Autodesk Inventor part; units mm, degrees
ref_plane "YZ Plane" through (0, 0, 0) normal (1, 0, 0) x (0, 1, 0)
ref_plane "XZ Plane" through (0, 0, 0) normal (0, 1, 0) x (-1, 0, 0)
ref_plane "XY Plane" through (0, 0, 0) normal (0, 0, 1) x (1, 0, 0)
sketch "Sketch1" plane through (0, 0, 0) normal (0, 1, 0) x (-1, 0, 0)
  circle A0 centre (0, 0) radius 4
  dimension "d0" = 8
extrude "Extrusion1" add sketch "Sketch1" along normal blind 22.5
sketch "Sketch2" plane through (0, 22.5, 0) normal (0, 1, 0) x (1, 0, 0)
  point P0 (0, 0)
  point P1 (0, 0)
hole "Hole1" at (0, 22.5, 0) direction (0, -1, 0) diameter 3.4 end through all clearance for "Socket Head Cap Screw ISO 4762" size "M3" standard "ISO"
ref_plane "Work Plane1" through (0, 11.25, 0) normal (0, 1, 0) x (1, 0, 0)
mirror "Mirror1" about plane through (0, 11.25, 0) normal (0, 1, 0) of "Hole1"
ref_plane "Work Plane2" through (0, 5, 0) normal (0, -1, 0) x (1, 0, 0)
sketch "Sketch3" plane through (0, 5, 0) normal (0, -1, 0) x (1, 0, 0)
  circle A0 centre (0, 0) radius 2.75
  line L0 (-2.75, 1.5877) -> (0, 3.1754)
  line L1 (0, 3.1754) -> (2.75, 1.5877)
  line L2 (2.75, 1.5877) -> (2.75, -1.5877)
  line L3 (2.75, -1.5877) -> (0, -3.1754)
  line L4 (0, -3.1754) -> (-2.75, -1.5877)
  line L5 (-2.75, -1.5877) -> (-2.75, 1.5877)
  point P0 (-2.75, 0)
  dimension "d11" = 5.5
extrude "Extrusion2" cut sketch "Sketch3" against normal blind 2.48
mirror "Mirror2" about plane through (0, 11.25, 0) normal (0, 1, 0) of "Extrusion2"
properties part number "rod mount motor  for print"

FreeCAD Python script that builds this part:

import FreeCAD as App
import Part
import Sketcher

V = App.Vector
Q = App.Units.Quantity

doc = App.newDocument("Part")
params = doc.addObject("Spreadsheet::Sheet", "Params")
for row, (alias, value) in enumerate([
    ("sketch1_diameter", "8 mm"),
    ("pad1_length", "22.5 mm"),
    ("sketch2_diameter", "3.4 mm"),
    ("hole_diameter", "3.4 mm"),
    ("pocket1_length", "2.48 mm"),
], start=1):
    params.set(f"A{row}", alias)
    params.set(f"B{row}", "=" + value)
    params.setAlias(f"B{row}", alias)

body = doc.addObject("PartDesign::Body", "Body")

# Sketch on XZ plane
sketch1 = body.newObject("Sketcher::SketchObject", "Sketch")
sketch1.AttachmentSupport = (doc.getObject("XZ_Plane"), [""])
sketch1.MapMode = "FlatFace"
sketch1.addGeometry(Part.Circle(V(0, 0, 0), V(0, 0, 1), 4), False)
sketch1.addConstraint(Sketcher.Constraint("Coincident", 0, 3, -1, 1))
sketch1.addConstraint(Sketcher.Constraint("Diameter", 0, Q("8 mm")))
sketch1.setExpression("Constraints[1]", "Params.sketch1_diameter")
pad1 = body.newObject("PartDesign::Pad", "Pad")
pad1.Profile = sketch1
pad1.setExpression("Length", "Params.pad1_length")
pad1.Reversed = True

# Sketch on XZ plane
sketch2 = body.newObject("Sketcher::SketchObject", "Sketch001")
sketch2.AttachmentSupport = (doc.getObject("XZ_Plane"), [""])
sketch2.MapMode = "FlatFace"
sketch2.AttachmentOffset = App.Placement(V(0, 0, -22.5), App.Rotation())
sketch2.addGeometry(Part.Circle(V(0, 0, 0), V(0, 0, 1), 1.7), False)
sketch2.addConstraint(Sketcher.Constraint("Coincident", 0, 3, -1, 1))
sketch2.addConstraint(Sketcher.Constraint("Diameter", 0, Q("3.4 mm")))
sketch2.setExpression("Constraints[1]", "Params.sketch2_diameter")
doc.recompute()
hole = body.newObject("PartDesign::Hole", "Hole")
hole.Profile = sketch2
hole.ThreadType = "None"
hole.setExpression("Diameter", "Params.hole_diameter")
hole.DepthType = "ThroughAll"
hole.Reversed = True
doc.recompute()

datumplane = body.newObject("PartDesign::Plane", "DatumPlane")
datumplane.AttachmentSupport = (doc.getObject("XZ_Plane"), [""])
datumplane.MapMode = "FlatFace"
datumplane.AttachmentOffset = App.Placement(V(0, 0, -11.25), App.Rotation())
mirrored = body.newObject("PartDesign::Mirrored", "Mirrored")
mirrored.Originals = [hole]
mirrored.MirrorPlane = (datumplane, [""])
body.Tip = mirrored

# Sketch on XZ plane
sketch3 = body.newObject("Sketcher::SketchObject", "Sketch002")
sketch3.AttachmentSupport = (doc.getObject("XZ_Plane"), [""])
sketch3.MapMode = "FlatFace"
sketch3.AttachmentOffset = App.Placement(V(0, 0, -5), App.Rotation())
sketch3.addGeometry(Part.LineSegment(V(2.8, -1.6, 0), V(2.8, 1.6, 0)), False)
sketch3.addGeometry(Part.LineSegment(V(2.8, 1.6, 0), V(0, 3.2, 0)), False)
sketch3.addGeometry(Part.LineSegment(V(0, 3.2, 0), V(-2.8, 1.6, 0)), False)
sketch3.addGeometry(Part.LineSegment(V(-2.8, 1.6, 0), V(-2.8, -1.6, 0)), False)
sketch3.addGeometry(Part.LineSegment(V(-2.8, -1.6, 0), V(0, -3.2, 0)), False)
sketch3.addGeometry(Part.LineSegment(V(0, -3.2, 0), V(2.8, -1.6, 0)), False)
sketch3.addConstraint(Sketcher.Constraint("Coincident", 0, 2, 1, 1))
sketch3.addConstraint(Sketcher.Constraint("Coincident", 1, 2, 2, 1))
sketch3.addConstraint(Sketcher.Constraint("Coincident", 2, 2, 3, 1))
sketch3.addConstraint(Sketcher.Constraint("Coincident", 3, 2, 4, 1))
sketch3.addConstraint(Sketcher.Constraint("Coincident", 4, 2, 5, 1))
sketch3.addConstraint(Sketcher.Constraint("Coincident", 5, 2, 0, 1))
sketch3.addConstraint(Sketcher.Constraint("Vertical", 0))
sketch3.addConstraint(Sketcher.Constraint("Vertical", 3))
sketch3.addConstraint(Sketcher.Constraint("Symmetric", 0, 2, 3, 2, -1, 1))
sketch3.addConstraint(Sketcher.Constraint("Symmetric", 1, 2, 4, 2, -1, 1))
sketch3.addConstraint(Sketcher.Constraint("PointOnObject", 1, 2, -2))
sketch3.addConstraint(Sketcher.Constraint("Parallel", 2, 5))
sketch3.addConstraint(Sketcher.Constraint("Horizontal", 0, 2, 2, 2))
sketch3.addConstraint(Sketcher.Constraint("DistanceX", 2, 2, 0, 2, Q("5.5 mm")))
sketch3.addConstraint(Sketcher.Constraint("Angle", 1, Q("150.0002 deg")))
sketch3.addConstraint(Sketcher.Constraint("DistanceY", 0, 1, 0, 2, Q("3.1754 mm")))
pocket1 = body.newObject("PartDesign::Pocket", "Pocket")
pocket1.Profile = sketch3
pocket1.setExpression("Length", "Params.pocket1_length")
doc.recompute()

datumplane2 = body.newObject("PartDesign::Plane", "DatumPlane001")
datumplane2.AttachmentSupport = (doc.getObject("XZ_Plane"), [""])
datumplane2.MapMode = "FlatFace"
datumplane2.AttachmentOffset = App.Placement(V(0, 0, -11.25), App.Rotation())
mirrored2 = body.newObject("PartDesign::Mirrored", "Mirrored001")
mirrored2.Originals = [pocket1]
mirrored2.MirrorPlane = (datumplane2, [""])
body.Tip = mirrored2

doc.recompute()
